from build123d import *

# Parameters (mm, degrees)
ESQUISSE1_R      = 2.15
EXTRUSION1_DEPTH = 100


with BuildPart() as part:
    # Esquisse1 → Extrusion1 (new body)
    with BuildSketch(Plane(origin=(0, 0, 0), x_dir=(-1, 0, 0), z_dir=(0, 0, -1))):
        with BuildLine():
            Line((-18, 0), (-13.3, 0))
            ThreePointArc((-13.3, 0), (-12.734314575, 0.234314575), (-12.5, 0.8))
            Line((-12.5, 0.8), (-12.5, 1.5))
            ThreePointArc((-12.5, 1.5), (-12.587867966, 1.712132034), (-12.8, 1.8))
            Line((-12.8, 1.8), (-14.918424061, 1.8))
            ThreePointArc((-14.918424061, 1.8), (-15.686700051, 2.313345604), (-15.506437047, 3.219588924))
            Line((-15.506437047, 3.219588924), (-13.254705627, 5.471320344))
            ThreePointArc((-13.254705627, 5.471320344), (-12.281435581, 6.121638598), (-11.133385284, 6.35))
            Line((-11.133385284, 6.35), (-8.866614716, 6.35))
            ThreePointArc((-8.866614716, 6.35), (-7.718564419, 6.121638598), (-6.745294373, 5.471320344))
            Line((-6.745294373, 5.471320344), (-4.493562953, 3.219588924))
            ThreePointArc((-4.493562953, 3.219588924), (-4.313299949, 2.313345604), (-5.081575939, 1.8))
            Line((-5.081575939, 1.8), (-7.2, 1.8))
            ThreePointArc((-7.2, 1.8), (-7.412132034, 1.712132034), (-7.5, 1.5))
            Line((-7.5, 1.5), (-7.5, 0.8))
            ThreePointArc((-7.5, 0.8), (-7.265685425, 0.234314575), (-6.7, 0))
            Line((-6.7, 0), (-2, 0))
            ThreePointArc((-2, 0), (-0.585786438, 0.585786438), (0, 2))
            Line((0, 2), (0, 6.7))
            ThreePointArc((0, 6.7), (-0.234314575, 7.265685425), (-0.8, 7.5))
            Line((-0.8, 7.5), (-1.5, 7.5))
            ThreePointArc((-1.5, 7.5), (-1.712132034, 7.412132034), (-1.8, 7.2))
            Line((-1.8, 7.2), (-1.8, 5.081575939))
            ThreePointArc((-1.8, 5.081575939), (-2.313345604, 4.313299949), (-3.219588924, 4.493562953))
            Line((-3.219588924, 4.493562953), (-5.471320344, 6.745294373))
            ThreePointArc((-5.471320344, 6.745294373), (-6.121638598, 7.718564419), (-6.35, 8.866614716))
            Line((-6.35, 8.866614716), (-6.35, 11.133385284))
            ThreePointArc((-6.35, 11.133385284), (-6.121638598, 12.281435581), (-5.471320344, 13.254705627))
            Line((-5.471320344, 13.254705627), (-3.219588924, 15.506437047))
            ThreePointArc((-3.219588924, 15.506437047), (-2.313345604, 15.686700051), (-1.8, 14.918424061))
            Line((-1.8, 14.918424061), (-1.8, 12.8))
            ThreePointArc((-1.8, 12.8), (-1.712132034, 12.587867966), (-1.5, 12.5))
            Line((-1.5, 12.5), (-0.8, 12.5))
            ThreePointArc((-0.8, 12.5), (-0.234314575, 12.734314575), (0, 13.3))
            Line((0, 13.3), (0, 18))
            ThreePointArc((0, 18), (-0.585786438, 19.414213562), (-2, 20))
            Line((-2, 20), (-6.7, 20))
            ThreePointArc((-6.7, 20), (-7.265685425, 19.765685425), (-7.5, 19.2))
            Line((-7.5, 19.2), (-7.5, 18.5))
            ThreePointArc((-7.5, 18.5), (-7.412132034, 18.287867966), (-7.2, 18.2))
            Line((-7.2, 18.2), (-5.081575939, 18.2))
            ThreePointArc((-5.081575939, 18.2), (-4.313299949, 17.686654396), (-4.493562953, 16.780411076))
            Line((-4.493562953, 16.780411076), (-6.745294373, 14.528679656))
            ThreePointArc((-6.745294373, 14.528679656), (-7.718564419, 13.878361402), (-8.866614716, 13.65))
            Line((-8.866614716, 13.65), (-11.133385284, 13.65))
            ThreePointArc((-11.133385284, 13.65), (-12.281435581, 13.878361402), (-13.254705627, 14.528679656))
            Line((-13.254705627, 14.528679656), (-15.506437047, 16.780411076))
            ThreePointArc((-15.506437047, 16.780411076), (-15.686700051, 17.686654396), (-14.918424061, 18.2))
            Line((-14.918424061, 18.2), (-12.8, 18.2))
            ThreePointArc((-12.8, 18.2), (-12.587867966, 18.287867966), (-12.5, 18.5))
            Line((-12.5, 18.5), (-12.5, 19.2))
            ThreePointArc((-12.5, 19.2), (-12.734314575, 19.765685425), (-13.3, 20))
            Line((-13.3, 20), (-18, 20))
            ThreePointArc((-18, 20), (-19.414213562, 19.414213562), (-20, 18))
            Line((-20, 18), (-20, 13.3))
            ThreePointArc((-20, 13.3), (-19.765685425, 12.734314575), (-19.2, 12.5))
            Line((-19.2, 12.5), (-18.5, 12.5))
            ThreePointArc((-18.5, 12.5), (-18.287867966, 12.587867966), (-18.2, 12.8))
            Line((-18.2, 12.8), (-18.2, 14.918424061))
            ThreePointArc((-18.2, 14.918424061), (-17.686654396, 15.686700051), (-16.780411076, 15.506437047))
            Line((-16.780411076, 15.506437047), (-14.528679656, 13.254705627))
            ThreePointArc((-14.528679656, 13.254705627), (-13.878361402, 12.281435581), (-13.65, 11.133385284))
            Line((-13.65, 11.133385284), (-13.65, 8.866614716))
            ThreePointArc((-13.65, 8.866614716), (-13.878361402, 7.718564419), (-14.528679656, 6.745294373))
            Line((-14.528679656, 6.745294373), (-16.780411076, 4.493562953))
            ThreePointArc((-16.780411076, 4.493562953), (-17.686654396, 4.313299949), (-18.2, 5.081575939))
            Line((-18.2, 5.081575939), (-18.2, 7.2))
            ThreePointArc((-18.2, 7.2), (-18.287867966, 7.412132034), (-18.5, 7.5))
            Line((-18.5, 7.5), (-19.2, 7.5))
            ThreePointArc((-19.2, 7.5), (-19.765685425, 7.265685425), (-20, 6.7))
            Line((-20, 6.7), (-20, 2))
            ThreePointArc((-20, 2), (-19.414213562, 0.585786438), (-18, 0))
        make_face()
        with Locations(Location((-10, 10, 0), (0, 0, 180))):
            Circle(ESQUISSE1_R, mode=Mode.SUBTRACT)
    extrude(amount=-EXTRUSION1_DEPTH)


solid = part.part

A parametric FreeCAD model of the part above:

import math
import FreeCAD as App
import Part
import Sketcher
from FreeCAD import Vector

doc = App.newDocument("Part")
body = doc.addObject("PartDesign::Body", "Body")

sketch1 = body.newObject("Sketcher::SketchObject", "Sketch")
sketch1.AttachmentSupport = (doc.getObject("XY_Plane"), [""])
sketch1.MapMode = "FlatFace"
sketch1.addGeometry([
    Part.LineSegment(Vector(18, 0, 0), Vector(13.3, 0, 0)),
    Part.ArcOfCircle(Part.Circle(Vector(13.3, 0.8, 0), Vector(0, 0, 1), 0.8), math.radians(180), math.radians(270)),
    Part.LineSegment(Vector(12.5, 0.8, 0), Vector(12.5, 1.5, 0)),
    Part.ArcOfCircle(Part.Circle(Vector(12.8, 1.5, 0), Vector(0, 0, 1), 0.3), math.radians(90), math.radians(180)),
    Part.LineSegment(Vector(12.8, 1.8, 0), Vector(14.918424, 1.8, 0)),
    Part.ArcOfCircle(Part.Circle(Vector(14.918424, 2.631576, 0), Vector(0, 0, 1), 0.831576), math.radians(-90), math.radians(45)),
    Part.LineSegment(Vector(15.506437, 3.219589, 0), Vector(13.254706, 5.47132, 0)),
    Part.ArcOfCircle(Part.Circle(Vector(11.133385, 3.35, 0), Vector(0, 0, 1), 3), math.radians(45), math.radians(90)),
    Part.LineSegment(Vector(11.133385, 6.35, 0), Vector(8.866615, 6.35, 0)),
    Part.ArcOfCircle(Part.Circle(Vector(8.866615, 3.35, 0), Vector(0, 0, 1), 3), math.radians(90), math.radians(135)),
    Part.LineSegment(Vector(6.745294, 5.47132, 0), Vector(4.493563, 3.219589, 0)),
    Part.ArcOfCircle(Part.Circle(Vector(5.081576, 2.631576, 0), Vector(0, 0, 1), 0.831576), math.radians(135), math.radians(270)),
    Part.LineSegment(Vector(5.081576, 1.8, 0), Vector(7.2, 1.8, 0)),
    Part.ArcOfCircle(Part.Circle(Vector(7.2, 1.5, 0), Vector(0, 0, 1), 0.3), math.radians(0), math.radians(90)),
    Part.LineSegment(Vector(7.5, 1.5, 0), Vector(7.5, 0.8, 0)),
    Part.ArcOfCircle(Part.Circle(Vector(6.7, 0.8, 0), Vector(0, 0, 1), 0.8), math.radians(-90), math.radians(0)),
    Part.LineSegment(Vector(6.7, 0, 0), Vector(2, 0, 0)),
    Part.ArcOfCircle(Part.Circle(Vector(2, 2, 0), Vector(0, 0, 1), 2), math.radians(-180), math.radians(-90)),
    Part.LineSegment(Vector(0, 2, 0), Vector(0, 6.7, 0)),
    Part.ArcOfCircle(Part.Circle(Vector(0.8, 6.7, 0), Vector(0, 0, 1), 0.8), math.radians(90), math.radians(180)),
    Part.LineSegment(Vector(0.8, 7.5, 0), Vector(1.5, 7.5, 0)),
    Part.ArcOfCircle(Part.Circle(Vector(1.5, 7.2, 0), Vector(0, 0, 1), 0.3), math.radians(0), math.radians(90)),
    Part.LineSegment(Vector(1.8, 7.2, 0), Vector(1.8, 5.081576, 0)),
    Part.ArcOfCircle(Part.Circle(Vector(2.631576, 5.081576, 0), Vector(0, 0, 1), 0.831576), math.radians(180), math.radians(315)),
    Part.LineSegment(Vector(3.219589, 4.493563, 0), Vector(5.47132, 6.745294, 0)),
    Part.ArcOfCircle(Part.Circle(Vector(3.35, 8.866615, 0), Vector(0, 0, 1), 3), math.radians(-45), math.radians(0)),
    Part.LineSegment(Vector(6.35, 8.866615, 0), Vector(6.35, 11.133385, 0)),
    Part.ArcOfCircle(Part.Circle(Vector(3.35, 11.133385, 0), Vector(0, 0, 1), 3), math.radians(0), math.radians(45)),
    Part.LineSegment(Vector(5.47132, 13.254706, 0), Vector(3.219589, 15.506437, 0)),
    Part.ArcOfCircle(Part.Circle(Vector(2.631576, 14.918424, 0), Vector(0, 0, 1), 0.831576), math.radians(45), math.radians(180)),
    Part.LineSegment(Vector(1.8, 14.918424, 0), Vector(1.8, 12.8, 0)),
    Part.ArcOfCircle(Part.Circle(Vector(1.5, 12.8, 0), Vector(0, 0, 1), 0.3), math.radians(-90), math.radians(0)),
    Part.LineSegment(Vector(1.5, 12.5, 0), Vector(0.8, 12.5, 0)),
    Part.ArcOfCircle(Part.Circle(Vector(0.8, 13.3, 0), Vector(0, 0, 1), 0.8), math.radians(180), math.radians(270)),
    Part.LineSegment(Vector(0, 13.3, 0), Vector(0, 18, 0)),
    Part.ArcOfCircle(Part.Circle(Vector(2, 18, 0), Vector(0, 0, 1), 2), math.radians(90), math.radians(180)),
    Part.LineSegment(Vector(2, 20, 0), Vector(6.7, 20, 0)),
    Part.ArcOfCircle(Part.Circle(Vector(6.7, 19.2, 0), Vector(0, 0, 1), 0.8), math.radians(0), math.radians(90)),
    Part.LineSegment(Vector(7.5, 19.2, 0), Vector(7.5, 18.5, 0)),
    Part.ArcOfCircle(Part.Circle(Vector(7.2, 18.5, 0), Vector(0, 0, 1), 0.3), math.radians(-90), math.radians(0)),
    Part.LineSegment(Vector(7.2, 18.2, 0), Vector(5.081576, 18.2, 0)),
    Part.ArcOfCircle(Part.Circle(Vector(5.081576, 17.368424, 0), Vector(0, 0, 1), 0.831576), math.radians(90), math.radians(225)),
    Part.LineSegment(Vector(4.493563, 16.780411, 0), Vector(6.745294, 14.52868, 0)),
    Part.ArcOfCircle(Part.Circle(Vector(8.866615, 16.65, 0), Vector(0, 0, 1), 3), math.radians(-135), math.radians(-90)),
    Part.LineSegment(Vector(8.866615, 13.65, 0), Vector(11.133385, 13.65, 0)),
    Part.ArcOfCircle(Part.Circle(Vector(11.133385, 16.65, 0), Vector(0, 0, 1), 3), math.radians(-90), math.radians(-45)),
    Part.LineSegment(Vector(13.254706, 14.52868, 0), Vector(15.506437, 16.780411, 0)),
    Part.ArcOfCircle(Part.Circle(Vector(14.918424, 17.368424, 0), Vector(0, 0, 1), 0.831576), math.radians(-45), math.radians(90)),
    Part.LineSegment(Vector(14.918424, 18.2, 0), Vector(12.8, 18.2, 0)),
    Part.ArcOfCircle(Part.Circle(Vector(12.8, 18.5, 0), Vector(0, 0, 1), 0.3), math.radians(-180), math.radians(-90)),
    Part.LineSegment(Vector(12.5, 18.5, 0), Vector(12.5, 19.2, 0)),
    Part.ArcOfCircle(Part.Circle(Vector(13.3, 19.2, 0), Vector(0, 0, 1), 0.8), math.radians(90), math.radians(180)),
    Part.LineSegment(Vector(13.3, 20, 0), Vector(18, 20, 0)),
    Part.ArcOfCircle(Part.Circle(Vector(18, 18, 0), Vector(0, 0, 1), 2), math.radians(0), math.radians(90)),
    Part.LineSegment(Vector(20, 18, 0), Vector(20, 13.3, 0)),
    Part.ArcOfCircle(Part.Circle(Vector(19.2, 13.3, 0), Vector(0, 0, 1), 0.8), math.radians(-90), math.radians(0)),
    Part.LineSegment(Vector(19.2, 12.5, 0), Vector(18.5, 12.5, 0)),
    Part.ArcOfCircle(Part.Circle(Vector(18.5, 12.8, 0), Vector(0, 0, 1), 0.3), math.radians(-180), math.radians(-90)),
    Part.LineSegment(Vector(18.2, 12.8, 0), Vector(18.2, 14.918424, 0)),
    Part.ArcOfCircle(Part.Circle(Vector(17.368424, 14.918424, 0), Vector(0, 0, 1), 0.831576), math.radians(0), math.radians(135)),
    Part.LineSegment(Vector(16.780411, 15.506437, 0), Vector(14.52868, 13.254706, 0)),
    Part.ArcOfCircle(Part.Circle(Vector(16.65, 11.133385, 0), Vector(0, 0, 1), 3), math.radians(135), math.radians(180)),
    Part.LineSegment(Vector(13.65, 11.133385, 0), Vector(13.65, 8.866615, 0)),
    Part.ArcOfCircle(Part.Circle(Vector(16.65, 8.866615, 0), Vector(0, 0, 1), 3), math.radians(180), math.radians(225)),
    Part.LineSegment(Vector(14.52868, 6.745294, 0), Vector(16.780411, 4.493563, 0)),
    Part.ArcOfCircle(Part.Circle(Vector(17.368424, 5.081576, 0), Vector(0, 0, 1), 0.831576), math.radians(-135), math.radians(0)),
    Part.LineSegment(Vector(18.2, 5.081576, 0), Vector(18.2, 7.2, 0)),
    Part.ArcOfCircle(Part.Circle(Vector(18.5, 7.2, 0), Vector(0, 0, 1), 0.3), math.radians(90), math.radians(180)),
    Part.LineSegment(Vector(18.5, 7.5, 0), Vector(19.2, 7.5, 0)),
    Part.ArcOfCircle(Part.Circle(Vector(19.2, 6.7, 0), Vector(0, 0, 1), 0.8), math.radians(0), math.radians(90)),
    Part.LineSegment(Vector(20, 6.7, 0), Vector(20, 2, 0)),
    Part.ArcOfCircle(Part.Circle(Vector(18, 2, 0), Vector(0, 0, 1), 2), math.radians(-90), math.radians(0)),
    Part.Circle(Vector(10, 10, 0), Vector(0, 0, 1), 2.15),
], False)
sketch1.addConstraint([
    Sketcher.Constraint("Tangent", 0, 2, 1, 2),
    Sketcher.Constraint("Tangent", 1, 1, 2, 1),
    Sketcher.Constraint("Tangent", 2, 2, 3, 2),
    Sketcher.Constraint("Tangent", 3, 1, 4, 1),
    Sketcher.Constraint("Tangent", 4, 2, 5, 1),
    Sketcher.Constraint("Tangent", 5, 2, 6, 1),
    Sketcher.Constraint("Tangent", 6, 2, 7, 1),
    Sketcher.Constraint("Tangent", 7, 2, 8, 1),
    Sketcher.Constraint("Tangent", 8, 2, 9, 1),
    Sketcher.Constraint("Tangent", 9, 2, 10, 1),
    Sketcher.Constraint("Tangent", 10, 2, 11, 1),
    Sketcher.Constraint("Tangent", 11, 2, 12, 1),
    Sketcher.Constraint("Tangent", 12, 2, 13, 2),
    Sketcher.Constraint("Tangent", 13, 1, 14, 1),
    Sketcher.Constraint("Tangent", 14, 2, 15, 2),
    Sketcher.Constraint("Tangent", 15, 1, 16, 1),
    Sketcher.Constraint("Tangent", 16, 2, 17, 2),
    Sketcher.Constraint("Tangent", 17, 1, 18, 1),
    Sketcher.Constraint("Tangent", 18, 2, 19, 2),
    Sketcher.Constraint("Tangent", 19, 1, 20, 1),
    Sketcher.Constraint("Tangent", 20, 2, 21, 2),
    Sketcher.Constraint("Tangent", 21, 1, 22, 1),
    Sketcher.Constraint("Tangent", 22, 2, 23, 1),
    Sketcher.Constraint("Tangent", 23, 2, 24, 1),
    Sketcher.Constraint("Tangent", 24, 2, 25, 1),
    Sketcher.Constraint("Tangent", 25, 2, 26, 1),
    Sketcher.Constraint("Tangent", 26, 2, 27, 1),
    Sketcher.Constraint("Tangent", 27, 2, 28, 1),
    Sketcher.Constraint("Tangent", 28, 2, 29, 1),
    Sketcher.Constraint("Tangent", 29, 2, 30, 1),
    Sketcher.Constraint("Tangent", 30, 2, 31, 2),
    Sketcher.Constraint("Tangent", 31, 1, 32, 1),
    Sketcher.Constraint("Tangent", 32, 2, 33, 2),
    Sketcher.Constraint("Tangent", 33, 1, 34, 1),
    Sketcher.Constraint("Tangent", 34, 2, 35, 2),
    Sketcher.Constraint("Tangent", 35, 1, 36, 1),
    Sketcher.Constraint("Tangent", 36, 2, 37, 2),
    Sketcher.Constraint("Tangent", 37, 1, 38, 1),
    Sketcher.Constraint("Tangent", 38, 2, 39, 2),
    Sketcher.Constraint("Tangent", 39, 1, 40, 1),
    Sketcher.Constraint("Tangent", 40, 2, 41, 1),
    Sketcher.Constraint("Tangent", 41, 2, 42, 1),
    Sketcher.Constraint("Tangent", 42, 2, 43, 1),
    Sketcher.Constraint("Tangent", 43, 2, 44, 1),
    Sketcher.Constraint("Tangent", 44, 2, 45, 1),
    Sketcher.Constraint("Tangent", 45, 2, 46, 1),
    Sketcher.Constraint("Tangent", 46, 2, 47, 1),
    Sketcher.Constraint("Tangent", 47, 2, 48, 1),
    Sketcher.Constraint("Tangent", 48, 2, 49, 2),
    Sketcher.Constraint("Tangent", 49, 1, 50, 1),
    Sketcher.Constraint("Tangent", 50, 2, 51, 2),
    Sketcher.Constraint("Tangent", 51, 1, 52, 1),
    Sketcher.Constraint("Tangent", 52, 2, 53, 2),
    Sketcher.Constraint("Tangent", 53, 1, 54, 1),
    Sketcher.Constraint("Tangent", 54, 2, 55, 2),
    Sketcher.Constraint("Tangent", 55, 1, 56, 1),
    Sketcher.Constraint("Tangent", 56, 2, 57, 2),
    Sketcher.Constraint("Tangent", 57, 1, 58, 1),
    Sketcher.Constraint("Tangent", 58, 2, 59, 1),
    Sketcher.Constraint("Tangent", 59, 2, 60, 1),
    Sketcher.Constraint("Tangent", 60, 2, 61, 1),
    Sketcher.Constraint("Tangent", 61, 2, 62, 1),
    Sketcher.Constraint("Tangent", 62, 2, 63, 1),
    Sketcher.Constraint("Tangent", 63, 2, 64, 1),
    Sketcher.Constraint("Tangent", 64, 2, 65, 1),
    Sketcher.Constraint("Tangent", 65, 2, 66, 1),
    Sketcher.Constraint("Tangent", 66, 2, 67, 2),
    Sketcher.Constraint("Tangent", 67, 1, 68, 1),
    Sketcher.Constraint("Tangent", 68, 2, 69, 2),
    Sketcher.Constraint("Tangent", 69, 1, 70, 1),
    Sketcher.Constraint("Tangent", 70, 2, 71, 2),
    Sketcher.Constraint("Tangent", 71, 1, 0, 1),
    Sketcher.Constraint("Horizontal", 0),
    Sketcher.Constraint("Vertical", 2),
    Sketcher.Constraint("Horizontal", 4),
    Sketcher.Constraint("Horizontal", 8),
    Sketcher.Constraint("Horizontal", 12),
    Sketcher.Constraint("Vertical", 14),
    Sketcher.Constraint("Horizontal", 16),
    Sketcher.Constraint("Vertical", 18),
    Sketcher.Constraint("Horizontal", 20),
    Sketcher.Constraint("Vertical", 22),
    Sketcher.Constraint("Vertical", 26),
    Sketcher.Constraint("Vertical", 30),
    Sketcher.Constraint("Horizontal", 32),
    Sketcher.Constraint("Vertical", 34),
    Sketcher.Constraint("Horizontal", 36),
    Sketcher.Constraint("Vertical", 38),
    Sketcher.Constraint("Horizontal", 40),
    Sketcher.Constraint("Horizontal", 44),
    Sketcher.Constraint("Horizontal", 48),
    Sketcher.Constraint("Vertical", 50),
    Sketcher.Constraint("Horizontal", 52),
    Sketcher.Constraint("Vertical", 54),
    Sketcher.Constraint("Horizontal", 56),
    Sketcher.Constraint("Vertical", 58),
    Sketcher.Constraint("Vertical", 62),
    Sketcher.Constraint("Vertical", 66),
    Sketcher.Constraint("Horizontal", 68),
    Sketcher.Constraint("Vertical", 70),
    Sketcher.Constraint("Equal", 7, 9),
    Sketcher.Constraint("Equal", 5, 11),
    Sketcher.Constraint("Equal", 3, 13),
    Sketcher.Constraint("Equal", 1, 15),
    Sketcher.Constraint("Equal", 15, 19),
    Sketcher.Constraint("Equal", 13, 21),
    Sketcher.Constraint("Equal", 11, 23),
    Sketcher.Constraint("Equal", 9, 25),
    Sketcher.Constraint("Equal", 25, 27),
    Sketcher.Constraint("Equal", 23, 29),
    Sketcher.Constraint("Equal", 21, 31),
    Sketcher.Constraint("Equal", 19, 33),
    Sketcher.Constraint("Equal", 17, 35),
    Sketcher.Constraint("Equal", 33, 37),
    Sketcher.Constraint("Equal", 31, 39),
    Sketcher.Constraint("Equal", 29, 41),
    Sketcher.Constraint("Equal", 27, 43),
    Sketcher.Constraint("Equal", 43, 45),
    Sketcher.Constraint("Equal", 41, 47),
    Sketcher.Constraint("Equal", 39, 49),
    Sketcher.Constraint("Equal", 37, 51),
    Sketcher.Constraint("Equal", 35, 53),
    Sketcher.Constraint("Equal", 51, 55),
    Sketcher.Constraint("Equal", 49, 57),
    Sketcher.Constraint("Equal", 47, 59),
    Sketcher.Constraint("Equal", 45, 61),
    Sketcher.Constraint("Equal", 61, 63),
    Sketcher.Constraint("Equal", 59, 65),
    Sketcher.Constraint("Equal", 57, 67),
    Sketcher.Constraint("Equal", 55, 69),
    Sketcher.Constraint("Equal", 53, 71),
    Sketcher.Constraint("PointOnObject", 0, 2, -1),
    Sketcher.Constraint("PointOnObject", 15, 1, -1),
    Sketcher.Constraint("PointOnObject", 17, 1, -2),
    Sketcher.Constraint("PointOnObject", 33, 1, -2),
    Sketcher.Constraint("Perpendicular", 6, 10),
    Sketcher.Constraint("Parallel", 10, 24),
    Sketcher.Constraint("Perpendicular", 24, 28),
    Sketcher.Constraint("Parallel", 28, 42),
    Sketcher.Constraint("Perpendicular", 42, 46),
    Sketcher.Constraint("Parallel", 46, 60),
    Sketcher.Constraint("Perpendicular", 60, 64),
    Sketcher.Constraint("Horizontal", 5, 3, 11, 3),
    Sketcher.Constraint("Horizontal", 41, 3, 47, 3),
    Sketcher.Constraint("Horizontal", 37, 3, 51, 3),
    Sketcher.Constraint("Horizontal", 33, 3, 55, 3),
    Sketcher.Constraint("Horizontal", 29, 3, 59, 3),
    Sketcher.Constraint("Horizontal", 27, 3, 61, 3),
    Sketcher.Constraint("Horizontal", 25, 3, 63, 3),
    Sketcher.Constraint("Horizontal", 23, 3, 65, 3),
    Sketcher.Constraint("Horizontal", 21, 3, 67, 3),
    Sketcher.Constraint("Horizontal", 6, 2, 9, 2),
    Sketcher.Constraint("Vertical", 23, 3, 29, 3),
    Sketcher.Constraint("Vertical", 15, 3, 37, 3),
    Sketcher.Constraint("Vertical", 11, 3, 41, 3),
    Sketcher.Constraint("Vertical", 9, 3, 43, 3),
    Sketcher.Constraint("Vertical", 7, 3, 45, 3),
    Sketcher.Constraint("Vertical", 3, 3, 49, 3),
    Sketcher.Constraint("Vertical", 55, 3, 69, 3),
    Sketcher.Constraint("Equal", 4, 12),
    Sketcher.Constraint("Equal", 0, 16),
    Sketcher.Constraint("Equal", 32, 56),
    Sketcher.Constraint("Equal", 68, 2),
    Sketcher.Constraint("Equal", 52, 18),
    Sketcher.Constraint("Equal", 48, 22),
    Sketcher.Constraint("Equal", 44, 26),
    Sketcher.Constraint("Equal", 22, 30),
    Sketcher.Constraint("Equal", 18, 34),
    Sketcher.Constraint("Equal", 14, 38),
    Sketcher.Constraint("Equal", 10, 24),
    Sketcher.Constraint("Radius", 7, 3.0),
    Sketcher.Constraint("Radius", 17, 2.0),
    Sketcher.Constraint("Diameter", 72, 4.3),
    Sketcher.Constraint("Radius", 1, 0.8),
    Sketcher.Constraint("Radius", 3, 0.3),
    Sketcher.Constraint("DistanceX", 0, 2, 0, 1, 4.7),
    Sketcher.Constraint("DistanceX", 20, 1, 20, 2, 0.7),
    Sketcher.Constraint("DistanceY", -1, 1, 35, 3, 18.0),
    Sketcher.Constraint("DistanceX", -1, 1, 72, 3, 10.0),
    Sketcher.Constraint("DistanceY", -1, 1, 72, 3, 10.0),
    Sketcher.Constraint("DistanceY", -1, 1, 7, 3, 3.35),
    Sketcher.Constraint("Radius", 5, 0.831576),
    Sketcher.Constraint("DistanceX", 8, 2, 8, 1, 2.266771),
])
pad1 = body.newObject("PartDesign::Pad", "Pad")
pad1.Profile = sketch1
pad1.Length = 100

doc.recompute()
